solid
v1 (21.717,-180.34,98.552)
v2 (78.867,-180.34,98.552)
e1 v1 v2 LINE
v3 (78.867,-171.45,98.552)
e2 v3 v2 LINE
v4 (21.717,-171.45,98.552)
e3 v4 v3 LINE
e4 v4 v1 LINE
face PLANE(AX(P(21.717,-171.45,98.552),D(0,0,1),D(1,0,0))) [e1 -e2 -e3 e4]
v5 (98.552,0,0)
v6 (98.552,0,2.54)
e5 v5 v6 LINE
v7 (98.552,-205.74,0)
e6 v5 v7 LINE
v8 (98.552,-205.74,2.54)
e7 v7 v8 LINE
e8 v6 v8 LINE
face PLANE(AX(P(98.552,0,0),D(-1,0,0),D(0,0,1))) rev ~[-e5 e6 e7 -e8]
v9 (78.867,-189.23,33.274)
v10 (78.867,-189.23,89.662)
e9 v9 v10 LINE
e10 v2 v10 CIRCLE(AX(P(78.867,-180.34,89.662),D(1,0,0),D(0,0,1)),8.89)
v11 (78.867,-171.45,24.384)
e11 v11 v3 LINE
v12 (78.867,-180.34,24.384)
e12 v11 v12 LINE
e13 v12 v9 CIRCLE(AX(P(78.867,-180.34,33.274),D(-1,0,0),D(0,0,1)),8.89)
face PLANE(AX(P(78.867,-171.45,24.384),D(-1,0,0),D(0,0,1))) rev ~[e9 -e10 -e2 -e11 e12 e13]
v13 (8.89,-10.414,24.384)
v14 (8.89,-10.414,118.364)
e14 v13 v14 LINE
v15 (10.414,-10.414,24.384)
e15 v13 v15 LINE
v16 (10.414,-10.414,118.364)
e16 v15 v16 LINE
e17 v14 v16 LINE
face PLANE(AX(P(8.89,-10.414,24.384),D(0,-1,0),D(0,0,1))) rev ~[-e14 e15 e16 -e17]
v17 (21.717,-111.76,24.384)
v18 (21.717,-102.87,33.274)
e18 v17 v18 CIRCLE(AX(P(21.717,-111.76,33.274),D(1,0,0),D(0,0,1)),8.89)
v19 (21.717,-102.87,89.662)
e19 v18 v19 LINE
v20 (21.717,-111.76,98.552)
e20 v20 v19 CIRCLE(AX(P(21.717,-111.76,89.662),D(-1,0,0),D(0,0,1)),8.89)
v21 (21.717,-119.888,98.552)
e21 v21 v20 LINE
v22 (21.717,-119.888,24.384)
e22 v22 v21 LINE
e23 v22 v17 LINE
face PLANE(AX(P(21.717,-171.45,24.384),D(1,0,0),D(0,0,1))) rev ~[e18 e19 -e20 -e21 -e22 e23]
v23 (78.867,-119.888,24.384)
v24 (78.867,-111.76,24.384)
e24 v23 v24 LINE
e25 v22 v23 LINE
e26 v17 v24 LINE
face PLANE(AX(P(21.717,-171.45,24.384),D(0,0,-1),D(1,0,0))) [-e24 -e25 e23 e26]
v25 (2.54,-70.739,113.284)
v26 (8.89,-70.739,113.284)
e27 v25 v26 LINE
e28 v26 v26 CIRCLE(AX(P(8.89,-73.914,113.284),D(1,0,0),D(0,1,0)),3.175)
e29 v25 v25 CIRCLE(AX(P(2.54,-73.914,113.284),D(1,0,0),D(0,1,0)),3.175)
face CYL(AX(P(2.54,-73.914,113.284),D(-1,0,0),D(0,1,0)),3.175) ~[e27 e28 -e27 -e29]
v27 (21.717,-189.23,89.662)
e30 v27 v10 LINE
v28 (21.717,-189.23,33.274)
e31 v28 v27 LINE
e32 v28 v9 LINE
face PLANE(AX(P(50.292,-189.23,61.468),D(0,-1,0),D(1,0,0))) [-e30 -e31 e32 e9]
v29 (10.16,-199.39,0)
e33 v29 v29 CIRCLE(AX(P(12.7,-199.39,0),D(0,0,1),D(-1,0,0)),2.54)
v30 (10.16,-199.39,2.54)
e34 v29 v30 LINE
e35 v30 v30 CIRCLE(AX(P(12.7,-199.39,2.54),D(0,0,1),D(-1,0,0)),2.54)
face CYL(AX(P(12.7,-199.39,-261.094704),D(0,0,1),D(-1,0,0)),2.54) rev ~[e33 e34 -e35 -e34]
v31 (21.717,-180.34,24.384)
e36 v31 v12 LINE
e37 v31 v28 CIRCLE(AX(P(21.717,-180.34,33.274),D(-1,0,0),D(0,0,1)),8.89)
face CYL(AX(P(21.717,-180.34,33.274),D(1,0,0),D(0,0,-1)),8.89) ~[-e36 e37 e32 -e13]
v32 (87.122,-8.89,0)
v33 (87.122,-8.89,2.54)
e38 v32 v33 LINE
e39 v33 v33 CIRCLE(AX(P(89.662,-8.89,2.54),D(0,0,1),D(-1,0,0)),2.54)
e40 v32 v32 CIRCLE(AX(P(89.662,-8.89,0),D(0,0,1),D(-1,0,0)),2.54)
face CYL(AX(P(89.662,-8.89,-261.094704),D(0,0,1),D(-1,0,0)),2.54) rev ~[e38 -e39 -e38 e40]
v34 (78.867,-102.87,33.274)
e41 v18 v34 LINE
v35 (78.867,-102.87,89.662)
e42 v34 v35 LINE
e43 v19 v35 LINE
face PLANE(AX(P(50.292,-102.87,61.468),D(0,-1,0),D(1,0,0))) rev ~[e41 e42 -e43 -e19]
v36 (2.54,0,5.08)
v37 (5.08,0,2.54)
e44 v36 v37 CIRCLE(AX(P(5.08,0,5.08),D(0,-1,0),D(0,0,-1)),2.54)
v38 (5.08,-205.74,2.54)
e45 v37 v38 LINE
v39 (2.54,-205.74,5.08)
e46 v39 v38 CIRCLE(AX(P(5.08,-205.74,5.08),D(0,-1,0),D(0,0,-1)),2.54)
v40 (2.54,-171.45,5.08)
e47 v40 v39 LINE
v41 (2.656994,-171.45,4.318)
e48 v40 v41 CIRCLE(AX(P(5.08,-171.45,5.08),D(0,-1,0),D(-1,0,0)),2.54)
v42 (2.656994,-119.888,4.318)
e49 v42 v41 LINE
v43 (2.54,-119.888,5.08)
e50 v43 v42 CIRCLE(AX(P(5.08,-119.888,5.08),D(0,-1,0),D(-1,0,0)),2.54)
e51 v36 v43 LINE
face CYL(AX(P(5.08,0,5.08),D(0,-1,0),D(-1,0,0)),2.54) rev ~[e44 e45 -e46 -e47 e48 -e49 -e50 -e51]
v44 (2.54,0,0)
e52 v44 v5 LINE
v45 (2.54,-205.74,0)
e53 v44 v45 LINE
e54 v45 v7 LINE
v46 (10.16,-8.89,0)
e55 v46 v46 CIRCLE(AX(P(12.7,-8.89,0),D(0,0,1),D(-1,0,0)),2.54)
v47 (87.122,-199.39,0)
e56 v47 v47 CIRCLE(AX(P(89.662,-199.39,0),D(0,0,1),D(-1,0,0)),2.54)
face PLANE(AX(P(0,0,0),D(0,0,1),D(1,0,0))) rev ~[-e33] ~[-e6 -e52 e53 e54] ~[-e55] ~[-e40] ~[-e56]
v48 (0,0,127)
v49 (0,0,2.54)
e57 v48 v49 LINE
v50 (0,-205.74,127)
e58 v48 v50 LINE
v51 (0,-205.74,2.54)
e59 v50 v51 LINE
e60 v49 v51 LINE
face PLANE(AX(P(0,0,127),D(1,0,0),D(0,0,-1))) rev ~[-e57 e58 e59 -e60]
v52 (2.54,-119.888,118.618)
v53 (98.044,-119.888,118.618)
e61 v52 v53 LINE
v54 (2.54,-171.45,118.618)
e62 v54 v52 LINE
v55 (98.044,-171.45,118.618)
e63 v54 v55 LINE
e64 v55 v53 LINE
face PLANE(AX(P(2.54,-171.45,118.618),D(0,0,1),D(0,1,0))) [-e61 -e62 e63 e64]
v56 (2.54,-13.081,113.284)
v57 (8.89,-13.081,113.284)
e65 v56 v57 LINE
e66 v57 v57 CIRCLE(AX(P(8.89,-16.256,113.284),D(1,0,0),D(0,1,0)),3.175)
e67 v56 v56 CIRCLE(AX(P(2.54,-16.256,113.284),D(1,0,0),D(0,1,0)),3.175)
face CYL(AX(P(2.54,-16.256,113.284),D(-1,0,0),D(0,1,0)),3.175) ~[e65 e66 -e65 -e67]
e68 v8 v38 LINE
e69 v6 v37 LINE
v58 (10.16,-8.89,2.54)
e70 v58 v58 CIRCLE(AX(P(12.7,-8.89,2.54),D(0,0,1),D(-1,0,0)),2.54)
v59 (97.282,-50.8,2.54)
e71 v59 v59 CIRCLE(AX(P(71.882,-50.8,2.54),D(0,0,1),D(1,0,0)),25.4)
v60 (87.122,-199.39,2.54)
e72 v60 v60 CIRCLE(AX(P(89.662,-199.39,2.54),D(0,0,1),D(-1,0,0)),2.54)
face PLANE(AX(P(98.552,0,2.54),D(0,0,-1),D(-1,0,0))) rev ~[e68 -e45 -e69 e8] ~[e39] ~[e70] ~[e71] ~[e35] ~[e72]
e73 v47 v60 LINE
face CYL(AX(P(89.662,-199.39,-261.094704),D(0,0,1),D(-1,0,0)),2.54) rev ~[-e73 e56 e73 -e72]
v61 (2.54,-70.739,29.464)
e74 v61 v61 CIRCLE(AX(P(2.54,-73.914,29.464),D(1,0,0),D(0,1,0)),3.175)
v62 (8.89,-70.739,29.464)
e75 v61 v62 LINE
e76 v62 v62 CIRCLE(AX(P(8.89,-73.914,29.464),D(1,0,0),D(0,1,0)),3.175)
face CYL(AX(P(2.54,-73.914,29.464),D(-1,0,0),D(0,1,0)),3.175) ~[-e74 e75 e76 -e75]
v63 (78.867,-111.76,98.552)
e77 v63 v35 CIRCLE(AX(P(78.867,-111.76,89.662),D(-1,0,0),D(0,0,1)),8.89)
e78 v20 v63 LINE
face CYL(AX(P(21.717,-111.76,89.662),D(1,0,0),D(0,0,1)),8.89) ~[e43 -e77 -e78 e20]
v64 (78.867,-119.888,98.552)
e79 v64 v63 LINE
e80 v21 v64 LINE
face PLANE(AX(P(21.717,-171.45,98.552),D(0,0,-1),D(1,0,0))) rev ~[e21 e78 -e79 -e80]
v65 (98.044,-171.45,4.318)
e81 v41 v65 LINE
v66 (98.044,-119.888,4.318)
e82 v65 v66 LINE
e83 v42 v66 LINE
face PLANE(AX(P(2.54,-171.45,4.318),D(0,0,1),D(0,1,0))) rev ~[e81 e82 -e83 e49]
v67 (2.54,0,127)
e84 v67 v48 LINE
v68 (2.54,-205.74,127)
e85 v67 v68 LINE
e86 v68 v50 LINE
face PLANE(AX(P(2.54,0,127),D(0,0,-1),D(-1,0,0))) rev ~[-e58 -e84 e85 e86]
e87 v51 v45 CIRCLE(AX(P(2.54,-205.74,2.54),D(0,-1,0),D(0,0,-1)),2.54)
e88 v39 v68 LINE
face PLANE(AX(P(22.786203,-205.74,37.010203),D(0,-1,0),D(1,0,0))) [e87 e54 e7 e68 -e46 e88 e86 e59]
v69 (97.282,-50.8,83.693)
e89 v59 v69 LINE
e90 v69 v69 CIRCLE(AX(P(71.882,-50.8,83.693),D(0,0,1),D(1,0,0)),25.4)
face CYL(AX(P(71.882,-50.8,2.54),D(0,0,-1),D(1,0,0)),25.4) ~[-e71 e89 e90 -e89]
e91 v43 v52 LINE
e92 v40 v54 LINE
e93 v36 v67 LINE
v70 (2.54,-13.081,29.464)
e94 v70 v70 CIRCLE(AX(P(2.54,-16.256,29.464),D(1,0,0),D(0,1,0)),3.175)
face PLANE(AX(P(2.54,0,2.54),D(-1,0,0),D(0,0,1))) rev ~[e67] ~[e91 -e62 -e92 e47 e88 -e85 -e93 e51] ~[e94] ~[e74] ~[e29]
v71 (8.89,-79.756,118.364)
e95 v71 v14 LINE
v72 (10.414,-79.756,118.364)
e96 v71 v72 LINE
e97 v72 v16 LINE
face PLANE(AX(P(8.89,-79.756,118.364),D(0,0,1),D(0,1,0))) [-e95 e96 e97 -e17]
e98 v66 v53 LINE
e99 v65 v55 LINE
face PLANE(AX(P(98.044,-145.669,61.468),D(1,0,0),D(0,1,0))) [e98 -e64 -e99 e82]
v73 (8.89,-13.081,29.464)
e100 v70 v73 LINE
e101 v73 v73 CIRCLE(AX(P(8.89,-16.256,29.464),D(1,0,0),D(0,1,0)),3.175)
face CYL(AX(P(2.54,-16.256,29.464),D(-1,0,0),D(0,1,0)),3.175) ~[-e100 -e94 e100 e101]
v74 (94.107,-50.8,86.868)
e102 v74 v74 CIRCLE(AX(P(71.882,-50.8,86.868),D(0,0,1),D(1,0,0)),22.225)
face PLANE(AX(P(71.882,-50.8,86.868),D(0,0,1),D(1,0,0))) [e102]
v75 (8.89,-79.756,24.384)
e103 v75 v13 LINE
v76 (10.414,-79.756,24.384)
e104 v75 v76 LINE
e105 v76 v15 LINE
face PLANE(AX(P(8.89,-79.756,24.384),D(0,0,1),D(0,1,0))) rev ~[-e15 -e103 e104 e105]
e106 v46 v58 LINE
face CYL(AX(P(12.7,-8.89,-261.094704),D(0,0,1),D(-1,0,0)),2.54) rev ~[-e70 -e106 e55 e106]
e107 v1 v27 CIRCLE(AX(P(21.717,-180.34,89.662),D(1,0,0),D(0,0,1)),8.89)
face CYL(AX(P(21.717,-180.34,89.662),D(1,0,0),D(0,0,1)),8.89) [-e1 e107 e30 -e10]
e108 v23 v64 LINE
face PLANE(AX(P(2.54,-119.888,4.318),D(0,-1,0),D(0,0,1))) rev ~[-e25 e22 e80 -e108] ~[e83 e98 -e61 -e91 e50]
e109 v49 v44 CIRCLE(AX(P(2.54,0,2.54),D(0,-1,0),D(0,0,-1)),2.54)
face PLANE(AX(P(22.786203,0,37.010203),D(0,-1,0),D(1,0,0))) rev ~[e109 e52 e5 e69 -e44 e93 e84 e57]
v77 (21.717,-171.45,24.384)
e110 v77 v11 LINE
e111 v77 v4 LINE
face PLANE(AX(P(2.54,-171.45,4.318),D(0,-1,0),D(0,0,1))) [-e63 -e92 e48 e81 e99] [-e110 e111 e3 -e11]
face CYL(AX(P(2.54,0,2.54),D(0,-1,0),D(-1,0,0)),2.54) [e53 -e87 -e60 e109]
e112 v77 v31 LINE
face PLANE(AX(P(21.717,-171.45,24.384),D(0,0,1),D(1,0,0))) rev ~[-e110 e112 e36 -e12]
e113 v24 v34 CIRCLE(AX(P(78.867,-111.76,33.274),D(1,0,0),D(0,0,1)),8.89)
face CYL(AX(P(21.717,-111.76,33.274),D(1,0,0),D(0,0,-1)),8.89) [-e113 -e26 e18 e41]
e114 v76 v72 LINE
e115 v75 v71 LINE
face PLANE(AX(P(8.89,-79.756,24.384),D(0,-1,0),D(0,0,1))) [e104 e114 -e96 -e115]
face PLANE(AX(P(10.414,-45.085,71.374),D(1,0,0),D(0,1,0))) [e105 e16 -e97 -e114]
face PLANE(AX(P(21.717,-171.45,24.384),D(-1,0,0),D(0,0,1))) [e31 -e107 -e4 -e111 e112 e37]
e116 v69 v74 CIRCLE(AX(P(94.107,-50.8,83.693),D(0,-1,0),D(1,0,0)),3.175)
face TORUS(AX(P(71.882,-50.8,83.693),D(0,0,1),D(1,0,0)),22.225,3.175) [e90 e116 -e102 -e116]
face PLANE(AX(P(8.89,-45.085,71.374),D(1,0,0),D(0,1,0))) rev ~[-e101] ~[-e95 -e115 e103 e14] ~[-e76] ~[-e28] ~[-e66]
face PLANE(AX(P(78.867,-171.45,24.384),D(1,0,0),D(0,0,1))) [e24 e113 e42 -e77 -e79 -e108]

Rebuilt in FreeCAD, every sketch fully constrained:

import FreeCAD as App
import Part
import Sketcher
from FreeCAD import Vector
Q = App.Units.Quantity


def edges_at(feature, points):
    """Names of the edges that pass closest to the given points."""
    edges = feature.Shape.Edges
    near = lambda p: min(range(len(edges)), key=lambda i: edges[i].distToShape(Part.Vertex(*p))[0])
    return sorted({f"Edge{near(p) + 1}" for p in points})

doc = App.newDocument("Part")
body = doc.addObject("PartDesign::Body", "Body")

sketch1 = body.newObject("Sketcher::SketchObject", "Sketch")
sketch1.AttachmentSupport = (doc.getObject("XZ_Plane"), [""])
sketch1.MapMode = "FlatFace"
sketch1.addGeometry([
    Part.LineSegment(Vector(0, 127, 0), Vector(0, 0, 0)),
    Part.LineSegment(Vector(0, 0, 0), Vector(98.6, 0, 0)),
    Part.LineSegment(Vector(98.6, 0, 0), Vector(98.6, 2.5, 0)),
    Part.LineSegment(Vector(98.6, 2.5, 0), Vector(2.5, 2.5, 0)),
    Part.LineSegment(Vector(2.5, 2.5, 0), Vector(2.5, 127, 0)),
    Part.LineSegment(Vector(2.5, 127, 0), Vector(0, 127, 0)),
], False)
sketch1.addConstraint([
    Sketcher.Constraint("Coincident", 0, 2, 1, 1),
    Sketcher.Constraint("Coincident", 1, 2, 2, 1),
    Sketcher.Constraint("Coincident", 2, 2, 3, 1),
    Sketcher.Constraint("Coincident", 3, 2, 4, 1),
    Sketcher.Constraint("Coincident", 4, 2, 5, 1),
    Sketcher.Constraint("Coincident", 5, 2, 0, 1),
    Sketcher.Constraint("Vertical", 0),
    Sketcher.Constraint("Horizontal", 1),
    Sketcher.Constraint("Vertical", 2),
    Sketcher.Constraint("Horizontal", 3),
    Sketcher.Constraint("Vertical", 4),
    Sketcher.Constraint("Horizontal", 5),
    Sketcher.Constraint("Coincident", 0, 2, -1, 1),
    Sketcher.Constraint("Equal", 5, 2),
    Sketcher.Constraint("DistanceY", 0, 2, 0, 1, Q("5 in")),
    Sketcher.Constraint("DistanceX", 5, 2, 5, 1, Q("0.1 in")),
    Sketcher.Constraint("DistanceX", 1, 1, 1, 2, Q("3.88 in")),
])
pad1 = body.newObject("PartDesign::Pad", "Pad")
pad1.Profile = sketch1
pad1.Length = Q("8.1 in")

sketch2 = body.newObject("Sketcher::SketchObject", "Sketch001")
sketch2.AttachmentSupport = (doc.getObject("XY_Plane"), [""])
sketch2.MapMode = "FlatFace"
sketch2.addGeometry([
    Part.Circle(Vector(12.7, -199.4, 0), Vector(0, 0, 1), 2.5),
    Part.Circle(Vector(89.7, -199.4, 0), Vector(0, 0, 1), 2.5),
    Part.Circle(Vector(89.7, -8.9, 0), Vector(0, 0, 1), 2.5),
    Part.Circle(Vector(12.7, -8.9, 0), Vector(0, 0, 1), 2.5),
], False)
sketch2.addConstraint([
    Sketcher.Constraint("Equal", 0, 1),
    Sketcher.Constraint("Equal", 1, 2),
    Sketcher.Constraint("Equal", 2, 3),
    Sketcher.Constraint("Horizontal", 0, 3, 1, 3),
    Sketcher.Constraint("Horizontal", 2, 3, 3, 3),
    Sketcher.Constraint("Vertical", 1, 3, 2, 3),
    Sketcher.Constraint("Vertical", 0, 3, 3, 3),
    Sketcher.Constraint("Diameter", 0, Q("0.2 in")),
    Sketcher.Constraint("DistanceX", -1, 1, 0, 3, Q("0.5 in")),
    Sketcher.Constraint("DistanceY", 1, 3, 2, 3, Q("7.5 in")),
    Sketcher.Constraint("DistanceY", 0, 3, -1, 1, Q("7.85 in")),
    Sketcher.Constraint("DistanceX", -1, 1, 1, 3, Q("3.53 in")),
])
doc.recompute()
hole = body.newObject("PartDesign::Hole", "Hole")
hole.Profile = sketch2
hole.ThreadType = "None"
hole.Diameter = Q("0.2 in")
hole.DepthType = "ThroughAll"
hole.Reversed = True
doc.recompute()

fillet = body.newObject("PartDesign::Fillet", "Fillet")
fillet.Base = (hole, edges_at(hole, [(0, -102.87, 0), (2.54, -102.87, 2.54)]))
fillet.Radius = Q("0.1 in")

sketch3 = body.newObject("Sketcher::SketchObject", "Sketch002")
sketch3.AttachmentSupport = (doc.getObject("YZ_Plane"), [""])
sketch3.MapMode = "FlatFace"
sketch3.AttachmentOffset = App.Placement(Vector(0, 0, 0.1 * 25.4), App.Rotation())
sketch3.addGeometry([
    Part.LineSegment(Vector(-171, 119, 0), Vector(-171, 4, 0)),
    Part.LineSegment(Vector(-171, 4, 0), Vector(-120, 4, 0)),
    Part.LineSegment(Vector(-120, 4, 0), Vector(-120, 119, 0)),
    Part.LineSegment(Vector(-120, 119, 0), Vector(-171, 119, 0)),
], False)
sketch3.addConstraint([
    Sketcher.Constraint("Coincident", 0, 2, 1, 1),
    Sketcher.Constraint("Coincident", 1, 2, 2, 1),
    Sketcher.Constraint("Coincident", 2, 2, 3, 1),
    Sketcher.Constraint("Coincident", 3, 2, 0, 1),
    Sketcher.Constraint("Vertical", 0),
    Sketcher.Constraint("Horizontal", 1),
    Sketcher.Constraint("Vertical", 2),
    Sketcher.Constraint("Horizontal", 3),
    Sketcher.Constraint("DistanceY", 0, 2, 0, 1, Q("4.5 in")),
    Sketcher.Constraint("DistanceX", 1, 1, 1, 2, Q("2.03 in")),
    Sketcher.Constraint("DistanceX", 0, 2, -1, 1, Q("6.75 in")),
    Sketcher.Constraint("DistanceY", -1, 1, 0, 2, Q("0.17 in")),
])
pad2 = body.newObject("PartDesign::Pad", "Pad001")
pad2.Profile = sketch3
pad2.Length = Q("3.76 in")

sketch4 = body.newObject("Sketcher::SketchObject", "Sketch003")
sketch4.AttachmentSupport = (doc.getObject("XZ_Plane"), [""])
sketch4.MapMode = "FlatFace"
sketch4.AttachmentOffset = App.Placement(Vector(0, 0, 6.75 * 25.4), App.Rotation())
sketch4.addGeometry([
    Part.LineSegment(Vector(22, 99, 0), Vector(22, 24, 0)),
    Part.LineSegment(Vector(22, 24, 0), Vector(79, 24, 0)),
    Part.LineSegment(Vector(79, 24, 0), Vector(79, 99, 0)),
    Part.LineSegment(Vector(79, 99, 0), Vector(22, 99, 0)),
], False)
sketch4.addConstraint([
    Sketcher.Constraint("Coincident", 0, 2, 1, 1),
    Sketcher.Constraint("Coincident", 1, 2, 2, 1),
    Sketcher.Constraint("Coincident", 2, 2, 3, 1),
    Sketcher.Constraint("Coincident", 3, 2, 0, 1),
    Sketcher.Constraint("Vertical", 0),
    Sketcher.Constraint("Horizontal", 1),
    Sketcher.Constraint("Vertical", 2),
    Sketcher.Constraint("Horizontal", 3),
    Sketcher.Constraint("DistanceX", 1, 1, 1, 2, Q("2.25 in")),
    Sketcher.Constraint("DistanceY", 0, 2, 0, 1, Q("2.92 in")),
    Sketcher.Constraint("DistanceY", -1, 1, 0, 2, Q("0.96 in")),
    Sketcher.Constraint("DistanceX", -1, 1, 0, 2, Q("0.855 in")),
])
pad3 = body.newObject("PartDesign::Pad", "Pad002")
pad3.Profile = sketch4
pad3.Type = "TwoLengths"
pad3.Length = Q("0.7 in")
pad3.Length2 = Q("2.7 in")

sketch5 = body.newObject("Sketcher::SketchObject", "Sketch004")
sketch5.AttachmentSupport = (doc.getObject("XY_Plane"), [""])
sketch5.MapMode = "FlatFace"
sketch5.AttachmentOffset = App.Placement(Vector(0, 0, 0.1 * 25.4), App.Rotation())
sketch5.addGeometry(Part.Circle(Vector(72, -51, 0), Vector(0, 0, 1), 25), False)
sketch5.addConstraint([
    Sketcher.Constraint("Diameter", 0, Q("2 in")),
    Sketcher.Constraint("DistanceY", 0, 3, -1, 1, Q("2 in")),
    Sketcher.Constraint("DistanceX", -1, 1, 0, 3, Q("2.83 in")),
])
pad4 = body.newObject("PartDesign::Pad", "Pad003")
pad4.Profile = sketch5
pad4.Length = Q("3.32 in")
doc.recompute()

fillet2 = body.newObject("PartDesign::Fillet", "Fillet001")
fillet2.Base = (pad4, edges_at(pad4, [(46.482, -50.8, 86.868)]))
fillet2.Radius = Q("0.125 in")
doc.recompute()

fillet3 = body.newObject("PartDesign::Fillet", "Fillet002")
fillet3.Base = (fillet2, edges_at(fillet2, [
    (50.292, -189.23, 98.552),
    (50.292, -189.23, 24.384),
    (50.292, -102.87, 98.552),
    (50.292, -102.87, 24.384),
]))
fillet3.Radius = Q("0.35 in")

sketch6 = body.newObject("Sketcher::SketchObject", "Sketch005")
sketch6.AttachmentSupport = (doc.getObject("YZ_Plane"), [""])
sketch6.MapMode = "FlatFace"
sketch6.AttachmentOffset = App.Placement(Vector(0, 0, 0.1 * 25.4), App.Rotation())
sketch6.addGeometry([
    Part.Circle(Vector(-73.9, 113.3, 0), Vector(0, 0, 1), 3.2),
    Part.Circle(Vector(-16.3, 113.3, 0), Vector(0, 0, 1), 3.2),
    Part.Circle(Vector(-16.3, 29.5, 0), Vector(0, 0, 1), 3.2),
    Part.Circle(Vector(-73.9, 29.5, 0), Vector(0, 0, 1), 3.2),
], False)
sketch6.addConstraint([
    Sketcher.Constraint("Equal", 0, 1),
    Sketcher.Constraint("Equal", 1, 2),
    Sketcher.Constraint("Equal", 2, 3),
    Sketcher.Constraint("Horizontal", 0, 3, 1, 3),
    Sketcher.Constraint("Horizontal", 2, 3, 3, 3),
    Sketcher.Constraint("Vertical", 1, 3, 2, 3),
    Sketcher.Constraint("Vertical", 0, 3, 3, 3),
    Sketcher.Constraint("Diameter", 0, Q("0.25 in")),
    Sketcher.Constraint("DistanceY", 2, 3, 1, 3, Q("3.3 in")),
    Sketcher.Constraint("DistanceX", 0, 3, -1, 1, Q("2.91 in")),
    Sketcher.Constraint("DistanceY", -1, 1, 0, 3, Q("4.46 in")),
    Sketcher.Constraint("DistanceX", 1, 3, -1, 1, Q("0.64 in")),
])
pad5 = body.newObject("PartDesign::Pad", "Pad004")
pad5.Profile = sketch6
pad5.Length = Q("0.25 in")

sketch7 = body.newObject("Sketcher::SketchObject", "Sketch006")
sketch7.AttachmentSupport = (doc.getObject("YZ_Plane"), [""])
sketch7.MapMode = "FlatFace"
sketch7.AttachmentOffset = App.Placement(Vector(0, 0, 0.35 * 25.4), App.Rotation())
sketch7.addGeometry([
    Part.LineSegment(Vector(-80, 118, 0), Vector(-80, 24, 0)),
    Part.LineSegment(Vector(-80, 24, 0), Vector(-10, 24, 0)),
    Part.LineSegment(Vector(-10, 24, 0), Vector(-10, 118, 0)),
    Part.LineSegment(Vector(-10, 118, 0), Vector(-80, 118, 0)),
], False)
sketch7.addConstraint([
    Sketcher.Constraint("Coincident", 0, 2, 1, 1),
    Sketcher.Constraint("Coincident", 1, 2, 2, 1),
    Sketcher.Constraint("Coincident", 2, 2, 3, 1),
    Sketcher.Constraint("Coincident", 3, 2, 0, 1),
    Sketcher.Constraint("Vertical", 0),
    Sketcher.Constraint("Horizontal", 1),
    Sketcher.Constraint("Vertical", 2),
    Sketcher.Constraint("Horizontal", 3),
    Sketcher.Constraint("DistanceY", 0, 2, 0, 1, Q("3.7 in")),
    Sketcher.Constraint("DistanceX", 1, 1, 1, 2, Q("2.73 in")),
    Sketcher.Constraint("DistanceX", 0, 2, -1, 1, Q("3.14 in")),
    Sketcher.Constraint("DistanceY", -1, 1, 0, 2, Q("0.96 in")),
])
pad6 = body.newObject("PartDesign::Pad", "Pad005")
pad6.Profile = sketch7
pad6.Length = Q("0.06 in")

doc.recompute()
